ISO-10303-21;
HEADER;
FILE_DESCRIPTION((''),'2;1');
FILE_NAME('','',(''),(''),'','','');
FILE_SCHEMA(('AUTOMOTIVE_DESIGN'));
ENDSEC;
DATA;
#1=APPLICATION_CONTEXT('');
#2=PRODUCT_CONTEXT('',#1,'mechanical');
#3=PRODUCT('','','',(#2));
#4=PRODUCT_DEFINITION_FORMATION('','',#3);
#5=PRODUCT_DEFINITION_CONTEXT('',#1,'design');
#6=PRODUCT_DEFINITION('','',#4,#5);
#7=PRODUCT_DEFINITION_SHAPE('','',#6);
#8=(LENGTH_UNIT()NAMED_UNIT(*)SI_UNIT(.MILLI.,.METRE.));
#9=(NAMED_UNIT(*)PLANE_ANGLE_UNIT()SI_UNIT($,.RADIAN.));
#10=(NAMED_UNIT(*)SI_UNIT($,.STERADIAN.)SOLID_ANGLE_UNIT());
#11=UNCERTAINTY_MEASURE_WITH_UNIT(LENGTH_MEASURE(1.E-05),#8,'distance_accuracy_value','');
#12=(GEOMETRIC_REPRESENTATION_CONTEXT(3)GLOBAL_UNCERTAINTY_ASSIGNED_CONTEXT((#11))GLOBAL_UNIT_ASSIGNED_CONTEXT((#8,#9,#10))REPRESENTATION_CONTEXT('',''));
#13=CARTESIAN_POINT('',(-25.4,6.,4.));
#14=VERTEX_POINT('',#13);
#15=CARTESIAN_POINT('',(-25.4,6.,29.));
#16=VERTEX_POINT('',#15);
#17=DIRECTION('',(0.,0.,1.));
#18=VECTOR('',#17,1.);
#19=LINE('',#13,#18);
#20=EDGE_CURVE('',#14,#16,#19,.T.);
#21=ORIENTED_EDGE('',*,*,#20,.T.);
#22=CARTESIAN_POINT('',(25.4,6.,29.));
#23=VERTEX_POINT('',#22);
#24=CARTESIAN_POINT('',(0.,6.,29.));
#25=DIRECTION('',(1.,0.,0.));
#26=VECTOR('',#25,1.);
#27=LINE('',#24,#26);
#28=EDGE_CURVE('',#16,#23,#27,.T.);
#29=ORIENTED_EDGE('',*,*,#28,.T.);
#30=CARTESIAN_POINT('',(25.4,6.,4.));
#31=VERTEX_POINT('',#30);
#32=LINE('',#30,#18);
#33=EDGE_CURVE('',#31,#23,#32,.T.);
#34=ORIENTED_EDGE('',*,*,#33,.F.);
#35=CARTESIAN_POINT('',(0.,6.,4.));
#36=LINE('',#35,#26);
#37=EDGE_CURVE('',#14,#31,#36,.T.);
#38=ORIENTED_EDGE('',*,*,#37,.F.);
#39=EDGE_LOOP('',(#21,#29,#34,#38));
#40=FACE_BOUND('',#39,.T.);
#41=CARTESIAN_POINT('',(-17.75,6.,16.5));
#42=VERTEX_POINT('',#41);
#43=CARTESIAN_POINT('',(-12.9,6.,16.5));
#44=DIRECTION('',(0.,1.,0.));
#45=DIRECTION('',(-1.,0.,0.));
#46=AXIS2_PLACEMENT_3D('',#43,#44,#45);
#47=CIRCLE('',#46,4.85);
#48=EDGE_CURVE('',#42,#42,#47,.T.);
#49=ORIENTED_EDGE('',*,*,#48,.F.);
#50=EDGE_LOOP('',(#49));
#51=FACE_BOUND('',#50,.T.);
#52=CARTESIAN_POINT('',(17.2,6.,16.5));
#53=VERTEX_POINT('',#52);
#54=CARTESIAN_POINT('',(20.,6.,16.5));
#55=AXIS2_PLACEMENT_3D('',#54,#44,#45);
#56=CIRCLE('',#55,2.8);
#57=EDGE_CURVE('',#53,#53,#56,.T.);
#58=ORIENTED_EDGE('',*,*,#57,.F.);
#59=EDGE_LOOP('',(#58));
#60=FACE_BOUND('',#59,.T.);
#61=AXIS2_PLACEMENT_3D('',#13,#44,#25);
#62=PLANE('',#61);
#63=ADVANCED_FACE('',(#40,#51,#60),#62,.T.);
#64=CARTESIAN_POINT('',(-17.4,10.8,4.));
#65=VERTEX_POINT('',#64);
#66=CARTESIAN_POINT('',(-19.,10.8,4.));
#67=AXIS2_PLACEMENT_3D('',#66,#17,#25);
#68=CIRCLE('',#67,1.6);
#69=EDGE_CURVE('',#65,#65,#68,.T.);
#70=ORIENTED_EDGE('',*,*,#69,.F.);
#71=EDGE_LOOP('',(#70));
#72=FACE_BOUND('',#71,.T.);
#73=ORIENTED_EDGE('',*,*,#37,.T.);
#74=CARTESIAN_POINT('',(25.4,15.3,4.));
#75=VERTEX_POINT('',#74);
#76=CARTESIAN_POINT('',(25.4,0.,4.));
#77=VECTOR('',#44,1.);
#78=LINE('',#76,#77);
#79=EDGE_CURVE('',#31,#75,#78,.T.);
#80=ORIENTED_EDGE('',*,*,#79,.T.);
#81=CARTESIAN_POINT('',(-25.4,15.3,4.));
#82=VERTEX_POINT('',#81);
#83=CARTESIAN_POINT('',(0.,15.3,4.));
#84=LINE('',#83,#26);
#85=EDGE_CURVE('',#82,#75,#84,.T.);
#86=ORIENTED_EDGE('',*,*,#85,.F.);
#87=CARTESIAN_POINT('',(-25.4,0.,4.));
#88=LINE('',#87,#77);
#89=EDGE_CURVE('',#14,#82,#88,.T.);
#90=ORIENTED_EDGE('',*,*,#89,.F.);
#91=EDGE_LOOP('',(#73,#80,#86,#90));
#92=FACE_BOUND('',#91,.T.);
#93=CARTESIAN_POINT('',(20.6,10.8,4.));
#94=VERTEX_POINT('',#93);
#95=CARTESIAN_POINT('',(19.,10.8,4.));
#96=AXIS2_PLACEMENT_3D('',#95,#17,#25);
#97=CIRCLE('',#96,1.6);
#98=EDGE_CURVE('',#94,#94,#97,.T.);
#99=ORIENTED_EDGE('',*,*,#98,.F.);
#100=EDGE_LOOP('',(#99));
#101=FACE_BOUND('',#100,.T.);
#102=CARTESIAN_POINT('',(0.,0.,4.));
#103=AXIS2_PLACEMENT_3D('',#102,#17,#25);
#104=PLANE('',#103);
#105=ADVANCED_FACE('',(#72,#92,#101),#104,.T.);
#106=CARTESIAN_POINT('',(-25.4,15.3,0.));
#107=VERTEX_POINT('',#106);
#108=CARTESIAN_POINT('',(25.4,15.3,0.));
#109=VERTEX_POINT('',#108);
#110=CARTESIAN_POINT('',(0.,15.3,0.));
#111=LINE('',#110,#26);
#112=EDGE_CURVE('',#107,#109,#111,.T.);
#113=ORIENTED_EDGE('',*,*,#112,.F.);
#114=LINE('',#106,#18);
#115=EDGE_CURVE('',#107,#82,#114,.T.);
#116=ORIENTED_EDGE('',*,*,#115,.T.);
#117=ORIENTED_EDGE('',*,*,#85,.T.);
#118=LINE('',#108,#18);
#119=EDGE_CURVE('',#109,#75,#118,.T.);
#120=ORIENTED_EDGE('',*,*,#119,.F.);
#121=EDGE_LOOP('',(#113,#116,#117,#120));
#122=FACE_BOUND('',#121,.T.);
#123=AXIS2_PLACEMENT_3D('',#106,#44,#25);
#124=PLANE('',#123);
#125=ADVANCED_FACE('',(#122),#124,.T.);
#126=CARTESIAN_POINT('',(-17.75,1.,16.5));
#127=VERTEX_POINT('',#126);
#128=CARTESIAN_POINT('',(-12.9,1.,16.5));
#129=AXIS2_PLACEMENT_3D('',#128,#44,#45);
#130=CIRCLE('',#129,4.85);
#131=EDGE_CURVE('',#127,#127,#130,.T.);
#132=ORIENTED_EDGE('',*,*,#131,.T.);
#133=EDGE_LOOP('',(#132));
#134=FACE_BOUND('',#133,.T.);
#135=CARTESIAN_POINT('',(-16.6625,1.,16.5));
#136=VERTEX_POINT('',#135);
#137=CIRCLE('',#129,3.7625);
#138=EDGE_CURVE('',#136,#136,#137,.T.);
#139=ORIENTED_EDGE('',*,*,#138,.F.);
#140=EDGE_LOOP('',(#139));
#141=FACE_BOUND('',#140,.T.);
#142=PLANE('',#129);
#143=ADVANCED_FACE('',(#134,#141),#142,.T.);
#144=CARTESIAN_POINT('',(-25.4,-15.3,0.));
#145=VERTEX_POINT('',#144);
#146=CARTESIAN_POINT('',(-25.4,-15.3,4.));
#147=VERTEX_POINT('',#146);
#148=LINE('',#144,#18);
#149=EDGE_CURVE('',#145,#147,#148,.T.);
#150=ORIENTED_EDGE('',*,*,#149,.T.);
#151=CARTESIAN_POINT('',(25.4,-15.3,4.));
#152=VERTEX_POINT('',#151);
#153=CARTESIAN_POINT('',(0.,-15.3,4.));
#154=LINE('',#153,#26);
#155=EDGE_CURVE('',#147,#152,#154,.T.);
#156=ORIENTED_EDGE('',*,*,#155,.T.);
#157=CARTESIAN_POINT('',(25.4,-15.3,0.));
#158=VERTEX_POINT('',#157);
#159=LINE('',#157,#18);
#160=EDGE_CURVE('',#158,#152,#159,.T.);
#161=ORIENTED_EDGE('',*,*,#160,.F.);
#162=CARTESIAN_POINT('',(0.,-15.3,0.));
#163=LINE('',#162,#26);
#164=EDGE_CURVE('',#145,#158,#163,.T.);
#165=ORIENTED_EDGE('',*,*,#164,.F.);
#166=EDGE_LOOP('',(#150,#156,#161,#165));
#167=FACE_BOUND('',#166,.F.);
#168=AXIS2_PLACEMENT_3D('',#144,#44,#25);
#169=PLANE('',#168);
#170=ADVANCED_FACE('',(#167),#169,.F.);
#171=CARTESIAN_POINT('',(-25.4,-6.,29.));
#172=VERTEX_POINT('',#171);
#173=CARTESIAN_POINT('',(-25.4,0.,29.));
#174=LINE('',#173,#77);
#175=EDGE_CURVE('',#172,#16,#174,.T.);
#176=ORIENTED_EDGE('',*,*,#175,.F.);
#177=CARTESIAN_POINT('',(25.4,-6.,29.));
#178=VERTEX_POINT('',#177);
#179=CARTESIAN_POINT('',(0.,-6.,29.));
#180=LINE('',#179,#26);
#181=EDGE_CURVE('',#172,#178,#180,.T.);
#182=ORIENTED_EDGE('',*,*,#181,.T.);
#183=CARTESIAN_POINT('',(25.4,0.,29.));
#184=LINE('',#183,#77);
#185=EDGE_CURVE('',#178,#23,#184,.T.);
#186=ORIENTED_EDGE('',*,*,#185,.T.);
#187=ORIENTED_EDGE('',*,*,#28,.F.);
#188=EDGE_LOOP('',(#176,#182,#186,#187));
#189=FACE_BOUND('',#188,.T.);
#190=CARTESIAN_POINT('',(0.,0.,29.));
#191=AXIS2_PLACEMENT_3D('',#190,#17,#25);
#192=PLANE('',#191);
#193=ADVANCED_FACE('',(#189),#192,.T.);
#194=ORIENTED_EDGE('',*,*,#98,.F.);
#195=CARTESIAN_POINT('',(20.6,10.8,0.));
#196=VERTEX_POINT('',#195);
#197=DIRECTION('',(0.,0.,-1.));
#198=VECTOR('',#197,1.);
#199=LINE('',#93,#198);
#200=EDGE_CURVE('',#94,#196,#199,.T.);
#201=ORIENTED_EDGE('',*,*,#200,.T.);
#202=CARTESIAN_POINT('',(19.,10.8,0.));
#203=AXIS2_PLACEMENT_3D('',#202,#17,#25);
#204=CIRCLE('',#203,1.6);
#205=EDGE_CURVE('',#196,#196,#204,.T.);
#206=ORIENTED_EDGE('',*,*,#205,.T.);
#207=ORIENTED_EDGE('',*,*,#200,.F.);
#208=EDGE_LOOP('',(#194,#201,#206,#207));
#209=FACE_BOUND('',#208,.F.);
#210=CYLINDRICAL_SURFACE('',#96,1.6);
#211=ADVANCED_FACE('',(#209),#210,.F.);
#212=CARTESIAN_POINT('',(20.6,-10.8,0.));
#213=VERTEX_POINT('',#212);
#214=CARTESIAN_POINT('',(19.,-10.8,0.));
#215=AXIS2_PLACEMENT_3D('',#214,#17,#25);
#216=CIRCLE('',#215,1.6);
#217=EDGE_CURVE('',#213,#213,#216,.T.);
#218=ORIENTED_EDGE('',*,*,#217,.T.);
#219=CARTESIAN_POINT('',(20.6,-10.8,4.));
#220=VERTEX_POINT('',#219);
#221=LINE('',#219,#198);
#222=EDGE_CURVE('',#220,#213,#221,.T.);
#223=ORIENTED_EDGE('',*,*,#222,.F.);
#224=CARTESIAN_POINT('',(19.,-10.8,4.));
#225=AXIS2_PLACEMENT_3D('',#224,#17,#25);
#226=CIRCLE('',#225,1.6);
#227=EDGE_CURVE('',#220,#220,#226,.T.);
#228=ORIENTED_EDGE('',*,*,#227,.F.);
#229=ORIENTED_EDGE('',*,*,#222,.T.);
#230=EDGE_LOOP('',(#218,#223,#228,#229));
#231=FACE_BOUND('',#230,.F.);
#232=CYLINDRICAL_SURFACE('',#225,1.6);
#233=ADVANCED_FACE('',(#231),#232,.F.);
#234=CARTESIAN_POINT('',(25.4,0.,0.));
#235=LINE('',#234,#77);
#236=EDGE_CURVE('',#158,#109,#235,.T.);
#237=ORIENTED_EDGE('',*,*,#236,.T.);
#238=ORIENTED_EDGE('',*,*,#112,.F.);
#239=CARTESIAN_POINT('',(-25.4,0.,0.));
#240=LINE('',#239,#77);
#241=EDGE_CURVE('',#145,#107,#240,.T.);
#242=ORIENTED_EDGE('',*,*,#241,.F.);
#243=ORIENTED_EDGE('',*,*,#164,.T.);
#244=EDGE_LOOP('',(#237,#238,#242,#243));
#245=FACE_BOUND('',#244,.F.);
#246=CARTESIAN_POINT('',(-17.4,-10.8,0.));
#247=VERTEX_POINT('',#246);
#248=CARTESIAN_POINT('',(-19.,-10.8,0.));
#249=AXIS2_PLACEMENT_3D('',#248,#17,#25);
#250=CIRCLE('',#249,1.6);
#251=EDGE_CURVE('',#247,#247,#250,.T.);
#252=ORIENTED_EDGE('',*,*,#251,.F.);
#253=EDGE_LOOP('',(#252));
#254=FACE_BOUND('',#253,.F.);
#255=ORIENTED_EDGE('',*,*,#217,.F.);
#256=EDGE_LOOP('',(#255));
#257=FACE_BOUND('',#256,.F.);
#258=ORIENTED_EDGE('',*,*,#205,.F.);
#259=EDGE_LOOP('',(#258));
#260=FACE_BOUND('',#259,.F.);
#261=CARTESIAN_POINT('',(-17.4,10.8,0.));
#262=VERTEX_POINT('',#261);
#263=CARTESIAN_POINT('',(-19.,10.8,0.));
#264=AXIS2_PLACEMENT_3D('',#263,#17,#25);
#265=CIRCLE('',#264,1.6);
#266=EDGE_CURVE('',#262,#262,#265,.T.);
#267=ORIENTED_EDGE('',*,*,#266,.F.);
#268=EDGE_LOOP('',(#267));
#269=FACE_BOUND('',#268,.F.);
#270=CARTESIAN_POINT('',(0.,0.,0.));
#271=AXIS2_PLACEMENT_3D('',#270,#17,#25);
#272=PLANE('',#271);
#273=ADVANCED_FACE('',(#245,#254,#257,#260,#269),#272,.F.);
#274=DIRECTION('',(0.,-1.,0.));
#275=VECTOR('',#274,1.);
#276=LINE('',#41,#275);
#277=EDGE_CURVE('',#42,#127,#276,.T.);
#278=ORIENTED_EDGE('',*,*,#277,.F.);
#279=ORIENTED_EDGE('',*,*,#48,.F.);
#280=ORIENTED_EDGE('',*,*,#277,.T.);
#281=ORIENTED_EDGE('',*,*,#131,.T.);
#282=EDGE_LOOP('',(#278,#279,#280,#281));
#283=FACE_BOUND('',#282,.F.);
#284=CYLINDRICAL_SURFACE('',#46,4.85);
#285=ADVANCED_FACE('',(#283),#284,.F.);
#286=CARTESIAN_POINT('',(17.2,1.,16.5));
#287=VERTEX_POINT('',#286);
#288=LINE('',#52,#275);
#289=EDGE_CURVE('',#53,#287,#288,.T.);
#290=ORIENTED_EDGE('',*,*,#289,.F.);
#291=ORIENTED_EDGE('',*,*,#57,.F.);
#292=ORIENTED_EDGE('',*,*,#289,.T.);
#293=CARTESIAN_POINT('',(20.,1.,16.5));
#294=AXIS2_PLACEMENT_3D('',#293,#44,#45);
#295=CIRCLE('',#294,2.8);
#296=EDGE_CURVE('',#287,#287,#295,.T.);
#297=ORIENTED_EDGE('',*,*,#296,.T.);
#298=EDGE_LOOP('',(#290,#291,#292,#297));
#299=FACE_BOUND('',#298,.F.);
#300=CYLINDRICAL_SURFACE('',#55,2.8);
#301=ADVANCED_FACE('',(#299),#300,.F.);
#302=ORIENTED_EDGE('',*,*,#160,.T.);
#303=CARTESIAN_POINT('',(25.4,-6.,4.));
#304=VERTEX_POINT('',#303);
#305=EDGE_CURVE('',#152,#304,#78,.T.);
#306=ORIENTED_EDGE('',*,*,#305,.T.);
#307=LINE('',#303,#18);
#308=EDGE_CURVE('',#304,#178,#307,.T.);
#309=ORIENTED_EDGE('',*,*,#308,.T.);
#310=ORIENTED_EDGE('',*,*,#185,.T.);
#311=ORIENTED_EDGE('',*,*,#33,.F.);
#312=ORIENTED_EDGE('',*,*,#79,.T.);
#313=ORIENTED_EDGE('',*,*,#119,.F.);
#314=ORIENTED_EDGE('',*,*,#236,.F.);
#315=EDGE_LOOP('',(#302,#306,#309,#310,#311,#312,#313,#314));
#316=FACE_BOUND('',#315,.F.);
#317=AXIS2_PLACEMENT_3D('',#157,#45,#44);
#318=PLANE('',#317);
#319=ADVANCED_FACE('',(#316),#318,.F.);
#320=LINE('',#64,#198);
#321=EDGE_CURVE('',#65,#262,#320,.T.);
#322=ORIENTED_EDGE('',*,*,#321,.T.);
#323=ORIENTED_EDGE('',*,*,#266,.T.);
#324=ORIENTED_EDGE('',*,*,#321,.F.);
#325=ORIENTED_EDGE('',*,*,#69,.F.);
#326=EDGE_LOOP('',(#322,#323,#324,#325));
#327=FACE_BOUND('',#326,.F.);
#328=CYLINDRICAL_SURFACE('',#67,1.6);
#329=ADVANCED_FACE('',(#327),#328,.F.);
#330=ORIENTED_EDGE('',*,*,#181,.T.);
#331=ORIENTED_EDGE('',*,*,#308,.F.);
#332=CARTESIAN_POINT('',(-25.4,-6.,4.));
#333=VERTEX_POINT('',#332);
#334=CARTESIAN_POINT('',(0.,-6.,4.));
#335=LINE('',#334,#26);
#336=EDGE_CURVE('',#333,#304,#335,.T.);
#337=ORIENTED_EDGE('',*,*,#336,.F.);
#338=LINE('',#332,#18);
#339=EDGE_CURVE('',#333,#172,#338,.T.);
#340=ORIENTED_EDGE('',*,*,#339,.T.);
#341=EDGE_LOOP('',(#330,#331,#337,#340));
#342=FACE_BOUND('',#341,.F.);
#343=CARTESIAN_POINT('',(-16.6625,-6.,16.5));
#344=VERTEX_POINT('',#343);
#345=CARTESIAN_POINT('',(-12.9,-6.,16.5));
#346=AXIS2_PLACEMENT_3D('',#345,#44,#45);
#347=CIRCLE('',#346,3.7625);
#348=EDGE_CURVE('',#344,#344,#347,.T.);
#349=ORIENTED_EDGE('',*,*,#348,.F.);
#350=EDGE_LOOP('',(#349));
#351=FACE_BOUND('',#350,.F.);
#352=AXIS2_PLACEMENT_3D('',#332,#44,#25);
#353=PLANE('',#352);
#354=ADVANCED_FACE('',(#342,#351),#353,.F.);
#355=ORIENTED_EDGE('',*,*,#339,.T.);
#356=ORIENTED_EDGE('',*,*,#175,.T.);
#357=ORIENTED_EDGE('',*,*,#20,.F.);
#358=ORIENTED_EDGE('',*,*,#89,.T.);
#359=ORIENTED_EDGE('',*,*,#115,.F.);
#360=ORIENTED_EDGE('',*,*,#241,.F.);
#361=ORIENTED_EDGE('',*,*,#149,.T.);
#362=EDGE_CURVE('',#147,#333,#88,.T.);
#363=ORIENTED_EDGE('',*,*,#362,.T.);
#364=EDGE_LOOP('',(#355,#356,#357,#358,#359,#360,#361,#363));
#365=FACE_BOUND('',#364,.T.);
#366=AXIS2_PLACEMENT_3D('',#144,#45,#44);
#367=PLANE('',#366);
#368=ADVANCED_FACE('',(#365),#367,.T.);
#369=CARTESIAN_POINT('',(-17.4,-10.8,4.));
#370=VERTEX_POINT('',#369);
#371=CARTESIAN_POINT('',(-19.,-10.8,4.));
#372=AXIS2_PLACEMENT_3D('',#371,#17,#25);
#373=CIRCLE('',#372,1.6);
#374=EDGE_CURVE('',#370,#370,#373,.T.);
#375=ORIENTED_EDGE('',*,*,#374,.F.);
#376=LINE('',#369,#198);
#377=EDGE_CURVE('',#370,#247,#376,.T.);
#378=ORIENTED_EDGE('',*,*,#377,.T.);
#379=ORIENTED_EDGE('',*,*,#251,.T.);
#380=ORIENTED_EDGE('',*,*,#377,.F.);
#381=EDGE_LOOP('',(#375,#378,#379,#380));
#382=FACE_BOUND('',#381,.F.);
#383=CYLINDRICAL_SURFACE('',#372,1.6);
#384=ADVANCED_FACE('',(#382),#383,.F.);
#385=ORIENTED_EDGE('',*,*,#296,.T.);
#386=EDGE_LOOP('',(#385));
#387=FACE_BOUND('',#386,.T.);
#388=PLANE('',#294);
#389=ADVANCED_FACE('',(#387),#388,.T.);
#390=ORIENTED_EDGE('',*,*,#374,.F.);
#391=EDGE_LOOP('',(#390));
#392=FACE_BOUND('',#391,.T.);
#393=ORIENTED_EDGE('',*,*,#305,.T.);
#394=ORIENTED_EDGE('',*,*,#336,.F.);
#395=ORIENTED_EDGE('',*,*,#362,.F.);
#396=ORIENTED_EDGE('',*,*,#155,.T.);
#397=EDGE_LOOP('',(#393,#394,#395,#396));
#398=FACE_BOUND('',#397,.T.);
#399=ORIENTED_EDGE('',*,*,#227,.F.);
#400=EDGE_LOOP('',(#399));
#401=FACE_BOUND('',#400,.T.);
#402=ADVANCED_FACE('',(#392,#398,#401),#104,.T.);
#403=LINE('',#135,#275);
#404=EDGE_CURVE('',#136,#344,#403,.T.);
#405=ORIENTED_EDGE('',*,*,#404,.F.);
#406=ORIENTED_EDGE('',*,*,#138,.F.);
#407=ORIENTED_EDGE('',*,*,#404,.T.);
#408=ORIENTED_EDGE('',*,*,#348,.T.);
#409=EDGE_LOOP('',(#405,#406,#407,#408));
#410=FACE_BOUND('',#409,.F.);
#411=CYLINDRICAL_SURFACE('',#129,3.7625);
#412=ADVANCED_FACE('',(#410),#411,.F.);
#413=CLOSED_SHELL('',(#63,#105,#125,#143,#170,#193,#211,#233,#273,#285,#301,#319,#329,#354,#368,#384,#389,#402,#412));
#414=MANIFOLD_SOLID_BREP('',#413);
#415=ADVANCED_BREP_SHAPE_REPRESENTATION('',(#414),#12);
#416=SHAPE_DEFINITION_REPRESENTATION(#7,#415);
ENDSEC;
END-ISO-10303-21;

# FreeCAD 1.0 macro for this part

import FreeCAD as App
import Part
import Sketcher
from FreeCAD import Vector

doc = App.newDocument("Part")
body = doc.addObject("PartDesign::Body", "Body")

sketch1 = doc.addObject("Sketcher::SketchObject", "Sketch")
body.addObject(sketch1)
sketch1.AttachmentSupport = (doc.XY_Plane, [""])
sketch1.MapMode = "FlatFace"
sketch1.addGeometry([
    Part.LineSegment(Vector(-25.4, 15.3, 0), Vector(-25.4, -15.3, 0)),
    Part.LineSegment(Vector(-25.4, -15.3, 0), Vector(25.4, -15.3, 0)),
    Part.LineSegment(Vector(25.4, -15.3, 0), Vector(25.4, 15.3, 0)),
    Part.LineSegment(Vector(25.4, 15.3, 0), Vector(-25.4, 15.3, 0)),
], False)
sketch1.addConstraint([
    Sketcher.Constraint("Coincident", 0, 2, 1, 1),
    Sketcher.Constraint("Coincident", 1, 2, 2, 1),
    Sketcher.Constraint("Coincident", 2, 2, 3, 1),
    Sketcher.Constraint("Coincident", 3, 2, 0, 1),
    Sketcher.Constraint("Vertical", 0),
    Sketcher.Constraint("Horizontal", 1),
    Sketcher.Constraint("Vertical", 2),
    Sketcher.Constraint("Horizontal", 3),
    Sketcher.Constraint("Symmetric", 0, 2, 2, 2, -1, 1),
    Sketcher.Constraint("DistanceX", 1, 1, 1, 2, 50.8),
    Sketcher.Constraint("DistanceY", 0, 2, 0, 1, 30.6),
])
pad1 = doc.addObject("PartDesign::Pad", "Pad")
body.addObject(pad1)
pad1.Profile = sketch1
pad1.Length = 4

sketch2 = doc.addObject("Sketcher::SketchObject", "Sketch001")
body.addObject(sketch2)
sketch2.AttachmentSupport = (doc.XY_Plane, [""])
sketch2.MapMode = "FlatFace"
sketch2.AttachmentOffset = App.Placement(Vector(0, 0, 4), App.Rotation())
sketch2.addGeometry([
    Part.Circle(Vector(19, 10.8, 0), Vector(0, 0, 1), 1.6),
    Part.Circle(Vector(19, -10.8, 0), Vector(0, 0, 1), 1.6),
    Part.Circle(Vector(-19, -10.8, 0), Vector(0, 0, 1), 1.6),
    Part.Circle(Vector(-19, 10.8, 0), Vector(0, 0, 1), 1.6),
], False)
sketch2.addConstraint([
    Sketcher.Constraint("Equal", 0, 1),
    Sketcher.Constraint("Equal", 1, 2),
    Sketcher.Constraint("Equal", 2, 3),
    Sketcher.Constraint("Symmetric", 0, 3, 2, 3, -1, 1),
    Sketcher.Constraint("Symmetric", 1, 3, 3, 3, -1, 1),
    Sketcher.Constraint("Symmetric", 1, 3, 2, 3, -2),
    Sketcher.Constraint("Diameter", 0, 3.2),
    Sketcher.Constraint("DistanceX", -1, 1, 0, 3, 19.0),
    Sketcher.Constraint("DistanceY", -1, 1, 0, 3, 10.8),
])
pocket1 = doc.addObject("PartDesign::Pocket", "Pocket")
body.addObject(pocket1)
pocket1.Profile = sketch2
pocket1.Type = "ThroughAll"

sketch3 = doc.addObject("Sketcher::SketchObject", "Sketch002")
body.addObject(sketch3)
sketch3.AttachmentSupport = (doc.XY_Plane, [""])
sketch3.MapMode = "FlatFace"
sketch3.AttachmentOffset = App.Placement(Vector(0, 0, 4), App.Rotation())
sketch3.addGeometry([
    Part.LineSegment(Vector(-25.4, 6, 0), Vector(-25.4, -6, 0)),
    Part.LineSegment(Vector(-25.4, -6, 0), Vector(25.4, -6, 0)),
    Part.LineSegment(Vector(25.4, -6, 0), Vector(25.4, 6, 0)),
    Part.LineSegment(Vector(25.4, 6, 0), Vector(-25.4, 6, 0)),
], False)
sketch3.addConstraint([
    Sketcher.Constraint("Coincident", 0, 2, 1, 1),
    Sketcher.Constraint("Coincident", 1, 2, 2, 1),
    Sketcher.Constraint("Coincident", 2, 2, 3, 1),
    Sketcher.Constraint("Coincident", 3, 2, 0, 1),
    Sketcher.Constraint("Vertical", 0),
    Sketcher.Constraint("Horizontal", 1),
    Sketcher.Constraint("Vertical", 2),
    Sketcher.Constraint("Horizontal", 3),
    Sketcher.Constraint("Symmetric", 0, 2, 2, 2, -1, 1),
    Sketcher.Constraint("DistanceY", 0, 2, 0, 1, 12.0),
    Sketcher.Constraint("DistanceX", 1, 1, 1, 2, 50.8),
])
pad2 = doc.addObject("PartDesign::Pad", "Pad001")
body.addObject(pad2)
pad2.Profile = sketch3
pad2.Length = 25

sketch4 = doc.addObject("Sketcher::SketchObject", "Sketch003")
body.addObject(sketch4)
sketch4.AttachmentSupport = (doc.XZ_Plane, [""])
sketch4.MapMode = "FlatFace"
sketch4.AttachmentOffset = App.Placement(Vector(0, 0, -6), App.Rotation())
sketch4.addGeometry(Part.Circle(Vector(-12.9, 16.5, 0), Vector(0, 0, 1), 4.85), False)
sketch4.addConstraint([
    Sketcher.Constraint("Diameter", 0, 9.7),
    Sketcher.Constraint("DistanceX", 0, 3, -1, 1, 12.9),
    Sketcher.Constraint("DistanceY", -1, 1, 0, 3, 16.5),
])
pocket2 = doc.addObject("PartDesign::Pocket", "Pocket001")
body.addObject(pocket2)
pocket2.Profile = sketch4
pocket2.Length = 5
pocket2.Reversed = True

sketch5 = doc.addObject("Sketcher::SketchObject", "Sketch004")
body.addObject(sketch5)
sketch5.AttachmentSupport = (doc.XZ_Plane, [""])
sketch5.MapMode = "FlatFace"
sketch5.AttachmentOffset = App.Placement(Vector(0, 0, -1), App.Rotation())
sketch5.addGeometry(Part.Circle(Vector(-12.9, 16.5, 0), Vector(0, 0, 1), 3.7625), False)
sketch5.addConstraint([
    Sketcher.Constraint("Diameter", 0, 7.525),
    Sketcher.Constraint("DistanceX", 0, 3, -1, 1, 12.9),
    Sketcher.Constraint("DistanceY", -1, 1, 0, 3, 16.5),
])
pocket3 = doc.addObject("PartDesign::Pocket", "Pocket002")
body.addObject(pocket3)
pocket3.Profile = sketch5
pocket3.Type = "ThroughAll"
pocket3.Reversed = True

sketch6 = doc.addObject("Sketcher::SketchObject", "Sketch005")
body.addObject(sketch6)
sketch6.AttachmentSupport = (doc.XZ_Plane, [""])
sketch6.MapMode = "FlatFace"
sketch6.AttachmentOffset = App.Placement(Vector(0, 0, -6), App.Rotation())
sketch6.addGeometry(Part.Circle(Vector(20, 16.5, 0), Vector(0, 0, 1), 2.8), False)
sketch6.addConstraint([
    Sketcher.Constraint("Diameter", 0, 5.6),
    Sketcher.Constraint("DistanceX", -1, 1, 0, 3, 20.0),
    Sketcher.Constraint("DistanceY", -1, 1, 0, 3, 16.5),
])
pocket4 = doc.addObject("PartDesign::Pocket", "Pocket003")
body.addObject(pocket4)
pocket4.Profile = sketch6
pocket4.Length = 5
pocket4.Reversed = True

doc.recompute()
